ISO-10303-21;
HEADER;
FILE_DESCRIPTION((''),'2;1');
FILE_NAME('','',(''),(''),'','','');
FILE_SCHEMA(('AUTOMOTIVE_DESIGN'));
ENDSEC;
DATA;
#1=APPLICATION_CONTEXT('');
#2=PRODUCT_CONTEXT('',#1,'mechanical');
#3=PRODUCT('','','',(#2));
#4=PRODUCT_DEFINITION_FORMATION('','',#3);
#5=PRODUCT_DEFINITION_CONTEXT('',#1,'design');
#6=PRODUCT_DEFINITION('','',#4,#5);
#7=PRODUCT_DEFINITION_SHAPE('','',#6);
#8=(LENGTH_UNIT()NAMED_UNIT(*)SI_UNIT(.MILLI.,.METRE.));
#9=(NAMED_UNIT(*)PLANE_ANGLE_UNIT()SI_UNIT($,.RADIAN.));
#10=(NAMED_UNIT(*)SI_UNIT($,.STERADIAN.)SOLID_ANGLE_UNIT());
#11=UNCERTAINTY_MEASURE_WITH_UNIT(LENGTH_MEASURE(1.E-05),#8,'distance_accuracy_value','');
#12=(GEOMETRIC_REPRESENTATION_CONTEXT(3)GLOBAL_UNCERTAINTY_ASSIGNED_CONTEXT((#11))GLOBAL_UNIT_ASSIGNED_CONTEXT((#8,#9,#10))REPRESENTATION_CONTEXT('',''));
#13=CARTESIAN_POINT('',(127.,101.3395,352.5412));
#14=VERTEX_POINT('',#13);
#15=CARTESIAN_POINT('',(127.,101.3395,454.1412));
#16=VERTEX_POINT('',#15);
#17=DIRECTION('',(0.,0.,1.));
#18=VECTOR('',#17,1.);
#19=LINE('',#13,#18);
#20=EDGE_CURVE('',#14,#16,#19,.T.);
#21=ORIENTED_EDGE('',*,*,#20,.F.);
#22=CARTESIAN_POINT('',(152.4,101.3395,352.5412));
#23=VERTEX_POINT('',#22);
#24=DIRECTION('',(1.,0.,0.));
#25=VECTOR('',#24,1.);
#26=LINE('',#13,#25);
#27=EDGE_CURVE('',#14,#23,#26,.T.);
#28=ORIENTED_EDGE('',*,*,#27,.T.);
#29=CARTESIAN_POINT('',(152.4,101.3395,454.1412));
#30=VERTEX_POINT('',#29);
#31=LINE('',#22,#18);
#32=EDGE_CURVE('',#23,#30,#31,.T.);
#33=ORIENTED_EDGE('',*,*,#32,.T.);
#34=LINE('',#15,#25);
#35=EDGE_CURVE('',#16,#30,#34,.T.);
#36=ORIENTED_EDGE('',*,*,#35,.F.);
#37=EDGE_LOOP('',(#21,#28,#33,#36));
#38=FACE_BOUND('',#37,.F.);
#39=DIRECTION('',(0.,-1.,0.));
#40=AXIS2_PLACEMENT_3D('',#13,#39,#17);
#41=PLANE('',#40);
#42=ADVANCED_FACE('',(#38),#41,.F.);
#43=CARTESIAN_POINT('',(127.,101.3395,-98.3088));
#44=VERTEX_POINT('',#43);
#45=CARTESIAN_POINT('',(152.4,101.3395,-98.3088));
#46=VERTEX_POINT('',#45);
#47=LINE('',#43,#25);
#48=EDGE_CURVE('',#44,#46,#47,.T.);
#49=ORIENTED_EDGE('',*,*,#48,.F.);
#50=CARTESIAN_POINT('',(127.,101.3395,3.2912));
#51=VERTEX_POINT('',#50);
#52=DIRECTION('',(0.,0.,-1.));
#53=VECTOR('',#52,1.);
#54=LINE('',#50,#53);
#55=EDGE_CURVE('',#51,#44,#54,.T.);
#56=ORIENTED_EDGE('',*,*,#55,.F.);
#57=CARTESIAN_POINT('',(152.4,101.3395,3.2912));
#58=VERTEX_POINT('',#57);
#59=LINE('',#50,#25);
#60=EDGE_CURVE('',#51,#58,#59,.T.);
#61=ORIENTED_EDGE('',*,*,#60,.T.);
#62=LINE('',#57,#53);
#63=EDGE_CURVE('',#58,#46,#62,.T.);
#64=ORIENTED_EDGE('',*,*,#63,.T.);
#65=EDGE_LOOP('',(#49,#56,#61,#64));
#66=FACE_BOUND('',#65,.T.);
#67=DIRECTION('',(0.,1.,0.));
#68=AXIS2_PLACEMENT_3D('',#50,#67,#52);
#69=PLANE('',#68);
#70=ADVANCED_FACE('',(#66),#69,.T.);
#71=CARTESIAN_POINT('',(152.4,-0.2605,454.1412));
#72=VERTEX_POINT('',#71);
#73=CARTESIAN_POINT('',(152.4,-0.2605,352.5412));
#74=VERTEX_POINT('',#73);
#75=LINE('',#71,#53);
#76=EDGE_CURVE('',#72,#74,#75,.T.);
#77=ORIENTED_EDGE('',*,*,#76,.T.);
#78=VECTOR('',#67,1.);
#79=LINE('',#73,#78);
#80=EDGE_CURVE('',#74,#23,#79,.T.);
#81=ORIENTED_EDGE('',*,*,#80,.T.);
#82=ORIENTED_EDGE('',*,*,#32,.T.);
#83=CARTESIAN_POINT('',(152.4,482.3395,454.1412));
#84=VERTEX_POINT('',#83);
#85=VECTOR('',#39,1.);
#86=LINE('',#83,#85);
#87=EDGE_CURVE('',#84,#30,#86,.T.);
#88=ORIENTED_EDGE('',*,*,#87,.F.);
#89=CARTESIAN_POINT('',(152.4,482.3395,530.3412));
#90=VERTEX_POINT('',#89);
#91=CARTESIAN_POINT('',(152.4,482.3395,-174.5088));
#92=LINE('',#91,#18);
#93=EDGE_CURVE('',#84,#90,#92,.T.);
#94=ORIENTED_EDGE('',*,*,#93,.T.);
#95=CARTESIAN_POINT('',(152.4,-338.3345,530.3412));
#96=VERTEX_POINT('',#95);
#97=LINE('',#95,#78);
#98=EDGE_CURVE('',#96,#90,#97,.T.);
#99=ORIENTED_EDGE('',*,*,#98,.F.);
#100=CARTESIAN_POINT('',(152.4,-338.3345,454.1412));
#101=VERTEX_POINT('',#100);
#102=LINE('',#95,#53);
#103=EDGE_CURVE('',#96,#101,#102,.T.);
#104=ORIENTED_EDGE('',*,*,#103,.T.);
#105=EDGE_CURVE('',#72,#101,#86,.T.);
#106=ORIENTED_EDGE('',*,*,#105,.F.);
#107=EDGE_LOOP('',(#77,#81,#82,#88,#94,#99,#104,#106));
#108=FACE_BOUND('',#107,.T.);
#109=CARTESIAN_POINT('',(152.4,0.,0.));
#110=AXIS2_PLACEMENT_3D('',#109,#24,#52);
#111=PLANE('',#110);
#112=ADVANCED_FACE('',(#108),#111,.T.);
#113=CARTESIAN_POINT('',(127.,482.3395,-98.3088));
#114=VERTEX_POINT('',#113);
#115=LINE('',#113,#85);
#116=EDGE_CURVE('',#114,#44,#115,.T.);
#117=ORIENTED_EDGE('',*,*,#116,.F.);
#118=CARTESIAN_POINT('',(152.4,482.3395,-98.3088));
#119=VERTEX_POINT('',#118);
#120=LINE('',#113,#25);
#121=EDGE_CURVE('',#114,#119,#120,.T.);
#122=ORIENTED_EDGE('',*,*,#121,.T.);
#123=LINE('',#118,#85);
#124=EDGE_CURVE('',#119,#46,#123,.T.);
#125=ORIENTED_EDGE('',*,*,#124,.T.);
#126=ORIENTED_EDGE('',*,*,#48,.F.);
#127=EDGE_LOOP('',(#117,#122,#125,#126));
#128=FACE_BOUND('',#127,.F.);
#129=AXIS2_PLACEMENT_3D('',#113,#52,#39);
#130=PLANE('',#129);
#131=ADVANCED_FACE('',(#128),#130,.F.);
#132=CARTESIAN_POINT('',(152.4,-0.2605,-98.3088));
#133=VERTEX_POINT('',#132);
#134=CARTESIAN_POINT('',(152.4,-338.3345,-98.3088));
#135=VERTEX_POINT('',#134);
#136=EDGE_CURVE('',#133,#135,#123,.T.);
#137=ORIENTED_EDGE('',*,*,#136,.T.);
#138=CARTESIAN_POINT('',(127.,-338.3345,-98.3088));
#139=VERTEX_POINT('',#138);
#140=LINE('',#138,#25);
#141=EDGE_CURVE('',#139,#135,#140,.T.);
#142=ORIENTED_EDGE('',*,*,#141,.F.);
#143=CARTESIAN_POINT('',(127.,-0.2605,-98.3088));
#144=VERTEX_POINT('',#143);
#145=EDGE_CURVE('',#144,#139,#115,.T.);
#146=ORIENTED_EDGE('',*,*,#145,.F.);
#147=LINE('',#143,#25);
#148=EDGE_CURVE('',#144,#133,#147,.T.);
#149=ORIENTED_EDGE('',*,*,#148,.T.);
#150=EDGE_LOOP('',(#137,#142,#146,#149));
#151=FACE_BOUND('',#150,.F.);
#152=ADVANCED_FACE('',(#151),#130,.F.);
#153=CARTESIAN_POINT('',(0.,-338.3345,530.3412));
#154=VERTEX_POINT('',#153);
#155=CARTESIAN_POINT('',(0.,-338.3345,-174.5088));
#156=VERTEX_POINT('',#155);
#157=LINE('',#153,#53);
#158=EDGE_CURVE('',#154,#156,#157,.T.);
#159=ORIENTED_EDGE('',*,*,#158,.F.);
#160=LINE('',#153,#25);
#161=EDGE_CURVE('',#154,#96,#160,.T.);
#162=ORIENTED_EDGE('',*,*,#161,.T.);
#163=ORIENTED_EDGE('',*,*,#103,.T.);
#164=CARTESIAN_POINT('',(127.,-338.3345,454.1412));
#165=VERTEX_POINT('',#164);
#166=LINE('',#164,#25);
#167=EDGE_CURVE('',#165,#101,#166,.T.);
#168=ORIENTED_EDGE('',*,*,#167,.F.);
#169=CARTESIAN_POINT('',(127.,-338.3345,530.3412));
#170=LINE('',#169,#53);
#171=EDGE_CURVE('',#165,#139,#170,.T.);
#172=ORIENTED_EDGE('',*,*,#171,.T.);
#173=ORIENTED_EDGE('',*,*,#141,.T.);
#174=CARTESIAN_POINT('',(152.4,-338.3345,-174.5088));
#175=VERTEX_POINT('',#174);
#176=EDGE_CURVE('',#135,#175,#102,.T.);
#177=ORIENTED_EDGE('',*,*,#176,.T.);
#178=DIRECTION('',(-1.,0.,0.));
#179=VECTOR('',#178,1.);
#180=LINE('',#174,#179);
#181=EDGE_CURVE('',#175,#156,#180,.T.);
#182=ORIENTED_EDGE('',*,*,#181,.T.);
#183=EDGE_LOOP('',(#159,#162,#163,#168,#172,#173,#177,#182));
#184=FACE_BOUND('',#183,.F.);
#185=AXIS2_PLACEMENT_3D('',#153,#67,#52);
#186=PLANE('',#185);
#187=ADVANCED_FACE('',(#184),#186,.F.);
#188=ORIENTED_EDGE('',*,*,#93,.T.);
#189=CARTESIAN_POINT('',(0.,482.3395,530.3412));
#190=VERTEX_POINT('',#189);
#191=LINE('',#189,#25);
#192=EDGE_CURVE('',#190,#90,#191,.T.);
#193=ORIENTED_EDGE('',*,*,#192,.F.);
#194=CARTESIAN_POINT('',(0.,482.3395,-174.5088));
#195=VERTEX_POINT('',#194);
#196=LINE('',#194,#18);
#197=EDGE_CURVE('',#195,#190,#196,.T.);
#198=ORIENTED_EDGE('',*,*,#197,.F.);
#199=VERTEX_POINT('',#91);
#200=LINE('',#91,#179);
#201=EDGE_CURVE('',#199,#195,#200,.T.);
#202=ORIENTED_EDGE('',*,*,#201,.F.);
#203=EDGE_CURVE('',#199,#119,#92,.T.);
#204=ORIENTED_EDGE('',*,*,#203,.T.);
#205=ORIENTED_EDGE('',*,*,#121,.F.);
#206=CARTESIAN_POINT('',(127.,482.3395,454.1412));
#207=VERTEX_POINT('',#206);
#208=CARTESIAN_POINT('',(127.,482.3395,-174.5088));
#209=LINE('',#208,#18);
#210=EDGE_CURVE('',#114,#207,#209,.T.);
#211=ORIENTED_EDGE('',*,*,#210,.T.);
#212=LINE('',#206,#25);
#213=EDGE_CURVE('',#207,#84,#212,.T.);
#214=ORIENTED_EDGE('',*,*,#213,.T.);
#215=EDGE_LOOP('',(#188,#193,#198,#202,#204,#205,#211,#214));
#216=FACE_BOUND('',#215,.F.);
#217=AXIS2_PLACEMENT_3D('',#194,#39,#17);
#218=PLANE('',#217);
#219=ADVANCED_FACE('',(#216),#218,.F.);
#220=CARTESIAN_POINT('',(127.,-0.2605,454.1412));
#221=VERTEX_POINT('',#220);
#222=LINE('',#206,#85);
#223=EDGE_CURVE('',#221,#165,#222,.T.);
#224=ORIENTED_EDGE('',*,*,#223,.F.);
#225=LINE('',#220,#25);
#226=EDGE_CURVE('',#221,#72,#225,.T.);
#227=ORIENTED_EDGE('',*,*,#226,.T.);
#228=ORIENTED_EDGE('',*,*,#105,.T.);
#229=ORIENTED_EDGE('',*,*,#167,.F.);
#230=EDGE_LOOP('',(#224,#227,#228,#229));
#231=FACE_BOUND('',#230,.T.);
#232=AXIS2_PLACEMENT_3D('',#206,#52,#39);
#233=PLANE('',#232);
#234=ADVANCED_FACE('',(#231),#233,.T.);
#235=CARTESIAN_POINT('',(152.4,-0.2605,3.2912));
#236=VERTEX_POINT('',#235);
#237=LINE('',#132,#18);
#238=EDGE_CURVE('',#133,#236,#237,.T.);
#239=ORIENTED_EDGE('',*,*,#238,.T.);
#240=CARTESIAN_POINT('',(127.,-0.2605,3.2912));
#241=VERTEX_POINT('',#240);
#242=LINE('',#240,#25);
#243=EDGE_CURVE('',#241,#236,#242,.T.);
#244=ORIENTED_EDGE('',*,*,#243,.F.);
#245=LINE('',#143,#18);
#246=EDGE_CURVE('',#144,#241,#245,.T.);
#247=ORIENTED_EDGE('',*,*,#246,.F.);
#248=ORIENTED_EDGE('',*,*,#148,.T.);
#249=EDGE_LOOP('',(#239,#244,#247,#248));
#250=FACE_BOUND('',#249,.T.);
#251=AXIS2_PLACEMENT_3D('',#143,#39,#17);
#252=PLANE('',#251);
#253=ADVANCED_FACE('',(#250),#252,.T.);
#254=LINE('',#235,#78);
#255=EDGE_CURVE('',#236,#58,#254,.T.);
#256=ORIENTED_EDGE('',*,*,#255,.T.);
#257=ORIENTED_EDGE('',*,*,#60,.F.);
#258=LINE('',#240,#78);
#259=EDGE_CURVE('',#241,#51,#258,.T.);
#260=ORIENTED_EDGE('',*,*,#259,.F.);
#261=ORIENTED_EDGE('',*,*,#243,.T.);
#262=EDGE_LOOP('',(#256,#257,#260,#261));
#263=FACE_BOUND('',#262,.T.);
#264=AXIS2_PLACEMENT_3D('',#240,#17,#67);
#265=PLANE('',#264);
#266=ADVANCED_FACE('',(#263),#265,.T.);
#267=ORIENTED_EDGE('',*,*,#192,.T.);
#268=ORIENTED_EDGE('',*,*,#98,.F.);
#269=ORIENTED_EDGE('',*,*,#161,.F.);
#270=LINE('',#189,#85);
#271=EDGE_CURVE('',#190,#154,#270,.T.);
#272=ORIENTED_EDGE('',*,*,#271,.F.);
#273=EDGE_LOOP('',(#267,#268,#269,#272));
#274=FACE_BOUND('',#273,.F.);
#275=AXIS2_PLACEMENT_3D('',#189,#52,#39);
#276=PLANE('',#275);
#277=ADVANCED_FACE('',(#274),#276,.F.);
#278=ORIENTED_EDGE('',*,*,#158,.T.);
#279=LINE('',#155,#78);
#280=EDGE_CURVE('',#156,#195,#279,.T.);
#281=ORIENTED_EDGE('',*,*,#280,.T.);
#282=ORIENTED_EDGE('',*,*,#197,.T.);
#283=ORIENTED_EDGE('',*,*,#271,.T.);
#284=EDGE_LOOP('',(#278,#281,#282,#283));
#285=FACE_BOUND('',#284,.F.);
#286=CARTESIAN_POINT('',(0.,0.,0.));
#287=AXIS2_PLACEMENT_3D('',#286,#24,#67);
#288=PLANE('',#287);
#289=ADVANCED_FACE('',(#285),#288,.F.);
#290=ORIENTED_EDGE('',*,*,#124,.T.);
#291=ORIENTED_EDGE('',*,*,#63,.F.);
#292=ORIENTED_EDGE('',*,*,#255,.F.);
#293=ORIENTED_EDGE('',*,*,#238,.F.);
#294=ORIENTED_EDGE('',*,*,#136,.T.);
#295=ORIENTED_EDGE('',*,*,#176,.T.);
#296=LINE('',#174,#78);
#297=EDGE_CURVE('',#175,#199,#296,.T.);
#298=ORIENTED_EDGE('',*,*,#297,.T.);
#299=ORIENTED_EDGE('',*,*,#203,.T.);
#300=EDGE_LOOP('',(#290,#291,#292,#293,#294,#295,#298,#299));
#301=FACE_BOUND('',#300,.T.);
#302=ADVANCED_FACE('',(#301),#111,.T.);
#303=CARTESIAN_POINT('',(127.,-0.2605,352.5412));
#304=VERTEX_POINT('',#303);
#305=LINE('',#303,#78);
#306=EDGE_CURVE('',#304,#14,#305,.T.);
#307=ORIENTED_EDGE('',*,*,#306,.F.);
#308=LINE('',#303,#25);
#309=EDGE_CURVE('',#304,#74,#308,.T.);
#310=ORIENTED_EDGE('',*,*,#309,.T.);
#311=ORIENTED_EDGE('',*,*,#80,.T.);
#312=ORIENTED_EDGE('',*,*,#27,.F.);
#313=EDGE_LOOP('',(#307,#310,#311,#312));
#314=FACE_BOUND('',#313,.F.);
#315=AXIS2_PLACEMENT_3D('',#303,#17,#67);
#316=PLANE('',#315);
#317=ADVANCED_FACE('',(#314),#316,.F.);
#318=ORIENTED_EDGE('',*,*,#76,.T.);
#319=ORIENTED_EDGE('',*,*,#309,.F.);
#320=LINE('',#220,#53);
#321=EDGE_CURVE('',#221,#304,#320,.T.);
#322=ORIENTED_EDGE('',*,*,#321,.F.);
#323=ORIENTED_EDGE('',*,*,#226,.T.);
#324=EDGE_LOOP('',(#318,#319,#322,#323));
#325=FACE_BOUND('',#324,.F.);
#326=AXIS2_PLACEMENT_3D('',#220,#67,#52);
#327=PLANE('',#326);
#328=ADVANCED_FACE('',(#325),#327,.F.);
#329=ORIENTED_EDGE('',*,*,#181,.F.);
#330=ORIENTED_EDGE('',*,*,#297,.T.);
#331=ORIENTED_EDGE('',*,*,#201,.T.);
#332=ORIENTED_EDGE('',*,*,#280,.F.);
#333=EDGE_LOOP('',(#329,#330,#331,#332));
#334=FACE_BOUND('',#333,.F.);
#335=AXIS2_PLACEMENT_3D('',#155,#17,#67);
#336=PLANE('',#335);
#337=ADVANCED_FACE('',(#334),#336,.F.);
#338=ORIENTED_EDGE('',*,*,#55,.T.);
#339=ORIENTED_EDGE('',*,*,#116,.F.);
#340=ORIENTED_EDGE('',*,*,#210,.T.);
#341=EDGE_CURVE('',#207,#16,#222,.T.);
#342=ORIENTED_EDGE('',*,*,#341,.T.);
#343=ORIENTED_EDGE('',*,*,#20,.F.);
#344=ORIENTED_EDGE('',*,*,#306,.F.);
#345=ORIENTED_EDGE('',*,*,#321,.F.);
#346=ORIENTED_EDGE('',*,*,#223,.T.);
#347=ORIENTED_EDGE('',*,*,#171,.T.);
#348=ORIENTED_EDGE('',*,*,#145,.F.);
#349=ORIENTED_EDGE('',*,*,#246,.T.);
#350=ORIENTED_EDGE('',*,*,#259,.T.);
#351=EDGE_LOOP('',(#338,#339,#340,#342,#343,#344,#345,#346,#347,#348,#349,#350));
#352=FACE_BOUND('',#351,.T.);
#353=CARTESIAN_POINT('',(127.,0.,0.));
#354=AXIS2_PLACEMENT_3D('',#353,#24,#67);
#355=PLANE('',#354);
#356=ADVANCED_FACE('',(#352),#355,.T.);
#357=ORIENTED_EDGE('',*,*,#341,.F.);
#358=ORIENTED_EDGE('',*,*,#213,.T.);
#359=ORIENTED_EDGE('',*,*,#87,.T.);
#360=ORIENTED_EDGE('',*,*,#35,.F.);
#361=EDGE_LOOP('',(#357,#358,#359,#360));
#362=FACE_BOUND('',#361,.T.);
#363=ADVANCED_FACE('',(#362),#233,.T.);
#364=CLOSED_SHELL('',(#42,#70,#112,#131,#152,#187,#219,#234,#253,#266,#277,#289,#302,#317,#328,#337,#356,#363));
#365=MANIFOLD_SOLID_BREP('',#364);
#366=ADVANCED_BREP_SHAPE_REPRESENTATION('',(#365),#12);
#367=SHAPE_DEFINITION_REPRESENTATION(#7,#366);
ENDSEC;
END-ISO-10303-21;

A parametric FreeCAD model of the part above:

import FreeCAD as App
import Part
import Sketcher

V = App.Vector
Q = App.Units.Quantity


def add_polygon(sketch, points):
    """Adds a closed chain of lines whose ends are joined by coincident constraints."""
    first, n = sketch.GeometryCount, len(points)
    for a, b in zip(points, points[1:] + points[:1]):
        sketch.addGeometry(Part.LineSegment(App.Vector(*a, 0), App.Vector(*b, 0)), False)
    for i in range(n):
        sketch.addConstraint(Sketcher.Constraint("Coincident", first + i, 2, first + (i + 1) % n, 1))

doc = App.newDocument("Part")
body = doc.addObject("PartDesign::Body", "Body")

sketch1 = body.newObject("Sketcher::SketchObject", "Sketch")
sketch1.AttachmentSupport = (doc.getObject("YZ_Plane"), [""])
sketch1.MapMode = "FlatFace"
add_polygon(sketch1, [(482, -175), (482, 530), (-338, 530), (-338, -175)])
sketch1.addConstraint([
    Sketcher.Constraint("Vertical", 0),
    Sketcher.Constraint("Horizontal", 1),
    Sketcher.Constraint("Vertical", 2),
    Sketcher.Constraint("Horizontal", 3),
    Sketcher.Constraint("DistanceX", 1, 2, 1, 1, Q("32.31 in")),
    Sketcher.Constraint("DistanceY", 0, 1, 0, 2, Q("27.75 in")),
    Sketcher.Constraint("DistanceX", -1, 1, 0, 2, 482.3395),
    Sketcher.Constraint("DistanceY", -1, 1, 0, 2, 530.3412),
])
pad1 = body.newObject("PartDesign::Pad", "Pad")
pad1.Profile = sketch1
pad1.Length = Q("5 in")

sketch2 = body.newObject("Sketcher::SketchObject", "Sketch001")
sketch2.AttachmentSupport = (doc.getObject("YZ_Plane"), [""])
sketch2.MapMode = "FlatFace"
sketch2.AttachmentOffset = App.Placement(V(0, 0, 5 * 25.4), App.Rotation())
add_polygon(sketch2, [(-338, -175), (482, -175), (482, -98), (-338, -98)])
add_polygon(sketch2, [(-338, 454), (482, 454), (482, 530), (-338, 530)])
sketch2.addConstraint([
    Sketcher.Constraint("Horizontal", 0),
    Sketcher.Constraint("Vertical", 1),
    Sketcher.Constraint("Horizontal", 2),
    Sketcher.Constraint("Vertical", 3),
    Sketcher.Constraint("Horizontal", 4),
    Sketcher.Constraint("Vertical", 5),
    Sketcher.Constraint("Horizontal", 6),
    Sketcher.Constraint("Vertical", 7),
    Sketcher.Constraint("Vertical", 1, 2, 4, 2),
    Sketcher.Constraint("Vertical", 3, 2, 6, 2),
    Sketcher.Constraint("Equal", 3, 5),
    Sketcher.Constraint("DistanceY", 1, 1, 1, 2, Q("3 in")),
    Sketcher.Constraint("DistanceX", 0, 1, 0, 2, Q("32.31 in")),
    Sketcher.Constraint("DistanceY", 1, 2, 4, 2, Q("21.75 in")),
    Sketcher.Constraint("DistanceX", -1, 1, 0, 2, 482.3395),
    Sketcher.Constraint("DistanceY", 0, 2, -1, 1, 174.5088),
])
pad2 = body.newObject("PartDesign::Pad", "Pad001")
pad2.Profile = sketch2
pad2.Length = Q("1 in")

sketch3 = body.newObject("Sketcher::SketchObject", "Sketch002")
sketch3.AttachmentSupport = (doc.getObject("YZ_Plane"), [""])
sketch3.MapMode = "FlatFace"
sketch3.AttachmentOffset = App.Placement(V(0, 0, 5 * 25.4), App.Rotation())
add_polygon(sketch3, [(101, 353), (101, 454), (0, 454), (0, 353)])
add_polygon(sketch3, [(0, -98), (101, -98), (101, 3), (0, 3)])
sketch3.addConstraint([
    Sketcher.Constraint("Vertical", 0),
    Sketcher.Constraint("Horizontal", 1),
    Sketcher.Constraint("Vertical", 2),
    Sketcher.Constraint("Horizontal", 3),
    Sketcher.Constraint("Horizontal", 4),
    Sketcher.Constraint("Vertical", 5),
    Sketcher.Constraint("Horizontal", 6),
    Sketcher.Constraint("Vertical", 7),
    Sketcher.Constraint("Vertical", 3, 2, 4, 2),
    Sketcher.Constraint("Vertical", 2, 2, 6, 2),
    Sketcher.Constraint("Equal", 6, 0),
    Sketcher.Constraint("Equal", 2, 5),
    Sketcher.Constraint("DistanceX", 1, 2, 1, 1, Q("4 in")),
    Sketcher.Constraint("DistanceY", 4, 2, 3, 2, Q("17.75 in")),
    Sketcher.Constraint("DistanceX", -1, 1, 0, 2, 101.3395),
    Sketcher.Constraint("DistanceY", -1, 1, 0, 2, 454.1412),
])
pad3 = body.newObject("PartDesign::Pad", "Pad002")
pad3.Profile = sketch3
pad3.Length = Q("1 in")

doc.recompute()
